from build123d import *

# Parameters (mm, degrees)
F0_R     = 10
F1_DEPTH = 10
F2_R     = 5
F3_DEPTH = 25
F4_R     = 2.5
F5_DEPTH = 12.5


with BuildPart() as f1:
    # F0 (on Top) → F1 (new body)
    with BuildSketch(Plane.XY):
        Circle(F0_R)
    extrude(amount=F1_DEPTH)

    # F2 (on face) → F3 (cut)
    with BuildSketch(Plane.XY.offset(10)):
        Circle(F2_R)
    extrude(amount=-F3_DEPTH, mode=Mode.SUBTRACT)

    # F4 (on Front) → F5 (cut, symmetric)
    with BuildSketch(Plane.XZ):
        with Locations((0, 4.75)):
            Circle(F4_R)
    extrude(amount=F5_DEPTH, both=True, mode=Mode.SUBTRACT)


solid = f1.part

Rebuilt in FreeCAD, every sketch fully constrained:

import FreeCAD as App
import Part
import Sketcher
Q = App.Units.Quantity

doc = App.newDocument("Part")
body = doc.addObject("PartDesign::Body", "Body")

# Sketch on XY plane
sketch1 = body.newObject("Sketcher::SketchObject", "Sketch")
sketch1.AttachmentSupport = (doc.getObject("XY_Plane"), [""])
sketch1.MapMode = "FlatFace"
sketch1.addGeometry(Part.Circle(App.Vector(0, 0, 0), App.Vector(0, 0, 1), 10), False)
sketch1.addConstraint([
    Sketcher.Constraint("Coincident", 0, 3, -1, 1),
    Sketcher.Constraint("Diameter", 0, Q("20 mm")),
])
pad1 = body.newObject("PartDesign::Pad", "Pad")
pad1.Profile = sketch1
pad1.Length = 10

# Sketch on XY plane
sketch2 = body.newObject("Sketcher::SketchObject", "Sketch001")
sketch2.AttachmentSupport = (doc.getObject("XY_Plane"), [""])
sketch2.MapMode = "FlatFace"
sketch2.AttachmentOffset = App.Placement(App.Vector(0, 0, 10), App.Rotation())
sketch2.addGeometry(Part.Circle(App.Vector(0, 0, 0), App.Vector(0, 0, 1), 5), False)
sketch2.addConstraint([
    Sketcher.Constraint("Coincident", 0, 3, -1, 1),
    Sketcher.Constraint("Diameter", 0, Q("10 mm")),
])
pocket1 = body.newObject("PartDesign::Pocket", "Pocket")
pocket1.Profile = sketch2
pocket1.Length = 25

# Sketch on XZ plane
sketch3 = body.newObject("Sketcher::SketchObject", "Sketch002")
sketch3.AttachmentSupport = (doc.getObject("XZ_Plane"), [""])
sketch3.MapMode = "FlatFace"
sketch3.addGeometry(Part.Circle(App.Vector(0, 4.8, 0), App.Vector(0, 0, 1), 2.5), False)
sketch3.addConstraint([
    Sketcher.Constraint("PointOnObject", 0, 3, -2),
    Sketcher.Constraint("Diameter", 0, Q("5 mm")),
    Sketcher.Constraint("DistanceY", -1, 1, 0, 3, Q("4.75 mm")),
])
pocket2 = body.newObject("PartDesign::Pocket", "Pocket001")
pocket2.Profile = sketch3
pocket2.Length = 25
pocket2.Midplane = True

doc.recompute()
